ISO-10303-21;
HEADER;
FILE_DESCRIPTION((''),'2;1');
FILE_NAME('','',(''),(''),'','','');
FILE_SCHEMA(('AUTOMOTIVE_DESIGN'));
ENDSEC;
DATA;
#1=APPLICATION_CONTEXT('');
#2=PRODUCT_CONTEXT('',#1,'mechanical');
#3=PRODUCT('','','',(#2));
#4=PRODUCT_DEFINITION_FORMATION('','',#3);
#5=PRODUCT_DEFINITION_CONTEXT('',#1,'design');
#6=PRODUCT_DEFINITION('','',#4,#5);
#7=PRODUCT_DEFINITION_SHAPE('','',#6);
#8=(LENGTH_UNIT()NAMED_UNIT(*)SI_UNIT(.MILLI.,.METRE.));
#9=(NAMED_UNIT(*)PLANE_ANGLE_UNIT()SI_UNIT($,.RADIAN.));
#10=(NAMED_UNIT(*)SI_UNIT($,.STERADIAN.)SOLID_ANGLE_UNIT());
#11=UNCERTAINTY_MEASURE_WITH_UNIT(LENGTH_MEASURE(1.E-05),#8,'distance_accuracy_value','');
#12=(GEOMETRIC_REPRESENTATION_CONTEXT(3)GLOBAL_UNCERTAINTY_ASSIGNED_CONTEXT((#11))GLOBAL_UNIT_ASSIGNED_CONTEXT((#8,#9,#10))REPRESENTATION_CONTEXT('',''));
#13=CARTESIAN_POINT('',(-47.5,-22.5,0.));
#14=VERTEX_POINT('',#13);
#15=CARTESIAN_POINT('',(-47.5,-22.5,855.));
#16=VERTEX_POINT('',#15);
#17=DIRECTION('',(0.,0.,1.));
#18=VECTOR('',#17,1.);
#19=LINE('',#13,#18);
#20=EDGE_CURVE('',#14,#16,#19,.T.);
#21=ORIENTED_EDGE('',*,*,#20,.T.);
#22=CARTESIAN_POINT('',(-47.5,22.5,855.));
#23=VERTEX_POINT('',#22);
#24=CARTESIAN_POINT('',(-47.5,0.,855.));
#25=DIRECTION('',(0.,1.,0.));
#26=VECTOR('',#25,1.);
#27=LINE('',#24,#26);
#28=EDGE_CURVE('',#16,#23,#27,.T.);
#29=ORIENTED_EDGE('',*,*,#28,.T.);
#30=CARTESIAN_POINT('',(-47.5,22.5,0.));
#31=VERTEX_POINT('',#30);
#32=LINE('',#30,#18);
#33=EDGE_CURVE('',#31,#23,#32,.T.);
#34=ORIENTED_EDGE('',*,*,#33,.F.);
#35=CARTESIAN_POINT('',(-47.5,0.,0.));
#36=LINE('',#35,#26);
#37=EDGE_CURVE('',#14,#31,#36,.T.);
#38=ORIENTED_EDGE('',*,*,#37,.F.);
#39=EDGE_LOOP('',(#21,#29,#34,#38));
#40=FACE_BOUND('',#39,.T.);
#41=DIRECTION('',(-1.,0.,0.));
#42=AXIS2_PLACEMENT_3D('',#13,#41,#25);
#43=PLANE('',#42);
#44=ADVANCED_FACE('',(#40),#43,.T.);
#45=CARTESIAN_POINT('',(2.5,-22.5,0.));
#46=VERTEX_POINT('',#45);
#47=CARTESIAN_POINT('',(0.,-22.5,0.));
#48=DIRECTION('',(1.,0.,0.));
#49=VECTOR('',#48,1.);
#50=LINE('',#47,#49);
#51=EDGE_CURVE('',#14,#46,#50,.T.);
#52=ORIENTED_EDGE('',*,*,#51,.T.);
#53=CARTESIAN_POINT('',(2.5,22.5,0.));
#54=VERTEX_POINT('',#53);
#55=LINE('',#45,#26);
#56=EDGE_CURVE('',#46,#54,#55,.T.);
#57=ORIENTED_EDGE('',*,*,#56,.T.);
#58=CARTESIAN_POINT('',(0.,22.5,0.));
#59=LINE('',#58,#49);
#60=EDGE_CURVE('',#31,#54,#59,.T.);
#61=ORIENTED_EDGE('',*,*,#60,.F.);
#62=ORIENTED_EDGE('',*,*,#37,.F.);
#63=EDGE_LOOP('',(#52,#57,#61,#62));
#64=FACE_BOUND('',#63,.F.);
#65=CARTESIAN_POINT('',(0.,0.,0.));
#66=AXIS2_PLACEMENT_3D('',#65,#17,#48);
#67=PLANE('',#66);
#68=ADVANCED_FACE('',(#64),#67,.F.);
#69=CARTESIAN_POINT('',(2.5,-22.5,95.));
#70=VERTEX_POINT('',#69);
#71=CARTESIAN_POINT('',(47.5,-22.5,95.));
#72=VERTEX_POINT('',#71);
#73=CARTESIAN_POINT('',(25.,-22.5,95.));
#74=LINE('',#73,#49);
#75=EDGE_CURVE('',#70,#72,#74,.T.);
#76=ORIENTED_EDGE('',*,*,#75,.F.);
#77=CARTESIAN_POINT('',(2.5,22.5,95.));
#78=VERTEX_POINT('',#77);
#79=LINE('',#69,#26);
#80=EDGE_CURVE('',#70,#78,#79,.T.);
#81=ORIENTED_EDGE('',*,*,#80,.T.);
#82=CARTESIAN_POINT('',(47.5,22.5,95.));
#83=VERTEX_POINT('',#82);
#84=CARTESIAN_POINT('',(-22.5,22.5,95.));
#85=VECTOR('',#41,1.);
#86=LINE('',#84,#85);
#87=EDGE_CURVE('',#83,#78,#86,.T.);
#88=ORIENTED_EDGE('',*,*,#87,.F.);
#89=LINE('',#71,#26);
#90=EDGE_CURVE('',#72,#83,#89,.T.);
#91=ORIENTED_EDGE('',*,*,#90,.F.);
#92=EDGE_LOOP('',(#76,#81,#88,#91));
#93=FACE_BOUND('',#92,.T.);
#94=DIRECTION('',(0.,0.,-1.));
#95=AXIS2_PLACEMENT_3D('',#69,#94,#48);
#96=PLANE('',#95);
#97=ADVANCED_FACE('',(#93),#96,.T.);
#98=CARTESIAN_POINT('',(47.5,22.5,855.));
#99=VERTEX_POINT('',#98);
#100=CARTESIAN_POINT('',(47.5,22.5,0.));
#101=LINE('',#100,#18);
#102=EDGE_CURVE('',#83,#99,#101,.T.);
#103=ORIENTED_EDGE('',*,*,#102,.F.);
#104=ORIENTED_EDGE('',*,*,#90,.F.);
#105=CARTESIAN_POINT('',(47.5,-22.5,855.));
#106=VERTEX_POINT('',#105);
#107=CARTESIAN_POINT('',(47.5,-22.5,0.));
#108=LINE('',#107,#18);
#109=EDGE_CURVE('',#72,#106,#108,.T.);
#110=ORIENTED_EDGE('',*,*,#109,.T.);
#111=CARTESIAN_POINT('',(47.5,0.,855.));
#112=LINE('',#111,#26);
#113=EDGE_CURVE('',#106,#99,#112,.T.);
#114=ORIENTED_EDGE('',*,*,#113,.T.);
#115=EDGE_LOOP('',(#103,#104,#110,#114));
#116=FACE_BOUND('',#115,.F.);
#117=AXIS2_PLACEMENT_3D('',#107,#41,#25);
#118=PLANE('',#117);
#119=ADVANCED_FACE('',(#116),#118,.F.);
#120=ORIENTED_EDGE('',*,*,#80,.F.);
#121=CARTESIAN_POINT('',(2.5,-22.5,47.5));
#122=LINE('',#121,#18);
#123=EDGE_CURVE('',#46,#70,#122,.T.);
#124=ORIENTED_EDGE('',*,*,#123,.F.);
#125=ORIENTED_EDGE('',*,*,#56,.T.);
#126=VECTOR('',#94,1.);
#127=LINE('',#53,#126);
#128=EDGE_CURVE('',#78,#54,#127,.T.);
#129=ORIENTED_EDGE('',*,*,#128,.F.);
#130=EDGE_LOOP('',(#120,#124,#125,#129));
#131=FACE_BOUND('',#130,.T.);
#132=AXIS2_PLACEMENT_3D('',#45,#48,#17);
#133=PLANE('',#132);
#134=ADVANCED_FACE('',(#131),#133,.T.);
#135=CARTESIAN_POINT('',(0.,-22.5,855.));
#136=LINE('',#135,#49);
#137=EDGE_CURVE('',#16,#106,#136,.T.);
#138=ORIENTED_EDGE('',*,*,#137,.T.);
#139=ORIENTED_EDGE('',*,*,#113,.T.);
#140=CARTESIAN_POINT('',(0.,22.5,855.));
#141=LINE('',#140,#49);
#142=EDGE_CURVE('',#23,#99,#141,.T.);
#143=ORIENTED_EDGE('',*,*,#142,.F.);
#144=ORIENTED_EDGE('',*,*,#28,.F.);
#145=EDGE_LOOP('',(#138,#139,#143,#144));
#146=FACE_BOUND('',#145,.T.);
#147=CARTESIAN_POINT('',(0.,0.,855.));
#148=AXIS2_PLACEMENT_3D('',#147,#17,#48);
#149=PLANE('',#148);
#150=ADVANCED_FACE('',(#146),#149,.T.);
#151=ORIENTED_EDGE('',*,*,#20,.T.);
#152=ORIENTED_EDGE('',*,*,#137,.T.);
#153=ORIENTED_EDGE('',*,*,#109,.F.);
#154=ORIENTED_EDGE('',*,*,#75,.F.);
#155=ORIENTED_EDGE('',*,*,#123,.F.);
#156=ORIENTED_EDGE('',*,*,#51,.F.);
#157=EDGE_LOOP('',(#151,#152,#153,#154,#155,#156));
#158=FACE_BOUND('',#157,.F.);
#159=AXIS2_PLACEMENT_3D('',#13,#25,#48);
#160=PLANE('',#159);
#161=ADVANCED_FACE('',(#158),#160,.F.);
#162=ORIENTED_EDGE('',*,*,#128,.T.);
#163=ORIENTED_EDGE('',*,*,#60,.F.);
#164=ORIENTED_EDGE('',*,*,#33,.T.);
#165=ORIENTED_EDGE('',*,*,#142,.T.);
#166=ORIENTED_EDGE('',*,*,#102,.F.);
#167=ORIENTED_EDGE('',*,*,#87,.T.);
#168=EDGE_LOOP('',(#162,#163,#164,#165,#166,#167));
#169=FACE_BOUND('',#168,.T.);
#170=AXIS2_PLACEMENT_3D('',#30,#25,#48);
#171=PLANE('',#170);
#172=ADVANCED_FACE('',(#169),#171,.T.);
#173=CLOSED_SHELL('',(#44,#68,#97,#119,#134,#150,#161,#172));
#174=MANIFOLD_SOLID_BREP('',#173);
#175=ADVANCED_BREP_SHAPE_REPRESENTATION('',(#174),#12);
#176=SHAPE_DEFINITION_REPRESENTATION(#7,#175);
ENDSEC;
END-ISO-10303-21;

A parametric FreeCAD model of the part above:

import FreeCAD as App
import Part
import Sketcher
from FreeCAD import Vector


def add_polygon(sketch, points):
    """Adds a closed chain of lines whose ends are joined by coincident constraints."""
    first, n = sketch.GeometryCount, len(points)
    for a, b in zip(points, points[1:] + points[:1]):
        sketch.addGeometry(Part.LineSegment(App.Vector(*a, 0), App.Vector(*b, 0)), False)
    for i in range(n):
        sketch.addConstraint(Sketcher.Constraint("Coincident", first + i, 2, first + (i + 1) % n, 1))

doc = App.newDocument("Part")
body = doc.addObject("PartDesign::Body", "Body")

sketch1 = body.newObject("Sketcher::SketchObject", "Sketch")
sketch1.AttachmentSupport = (doc.getObject("XY_Plane"), [""])
sketch1.MapMode = "FlatFace"
add_polygon(sketch1, [(-48, 22), (-48, -22), (48, -22), (48, 22)])
sketch1.addConstraint([
    Sketcher.Constraint("Vertical", 0),
    Sketcher.Constraint("Horizontal", 1),
    Sketcher.Constraint("Vertical", 2),
    Sketcher.Constraint("Horizontal", 3),
    Sketcher.Constraint("Symmetric", 0, 2, 2, 2, -1, 1),
    Sketcher.Constraint("DistanceX", 1, 1, 1, 2, 95.0),
    Sketcher.Constraint("DistanceY", 0, 2, 0, 1, 45.0),
])
pad1 = body.newObject("PartDesign::Pad", "Pad")
pad1.Profile = sketch1
pad1.Length = 855

sketch2 = body.newObject("Sketcher::SketchObject", "Sketch001")
sketch2.AttachmentSupport = (doc.getObject("XZ_Plane"), [""])
sketch2.MapMode = "FlatFace"
sketch2.AttachmentOffset = App.Placement(Vector(0, 0, 22.5), App.Rotation())
add_polygon(sketch2, [(2, 95), (2, 0), (48, 0), (48, 95)])
sketch2.addConstraint([
    Sketcher.Constraint("Vertical", 0),
    Sketcher.Constraint("Horizontal", 1),
    Sketcher.Constraint("Vertical", 2),
    Sketcher.Constraint("Horizontal", 3),
    Sketcher.Constraint("PointOnObject", 0, 2, -1),
    Sketcher.Constraint("DistanceX", 1, 1, 1, 2, 45.0),
    Sketcher.Constraint("DistanceY", 0, 2, 0, 1, 95.0),
    Sketcher.Constraint("DistanceX", -1, 1, 0, 2, 2.5),
])
pocket1 = body.newObject("PartDesign::Pocket", "Pocket")
pocket1.Profile = sketch2
pocket1.Type = "ThroughAll"

doc.recompute()
